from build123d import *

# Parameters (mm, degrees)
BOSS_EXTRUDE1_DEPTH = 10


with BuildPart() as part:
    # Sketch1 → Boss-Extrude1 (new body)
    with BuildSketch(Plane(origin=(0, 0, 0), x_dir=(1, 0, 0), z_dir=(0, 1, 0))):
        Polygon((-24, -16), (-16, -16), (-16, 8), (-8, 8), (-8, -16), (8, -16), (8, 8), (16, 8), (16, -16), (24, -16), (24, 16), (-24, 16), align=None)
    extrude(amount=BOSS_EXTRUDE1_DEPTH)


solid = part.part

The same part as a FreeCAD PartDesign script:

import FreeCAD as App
import Part
import Sketcher
from FreeCAD import Vector
Q = App.Units.Quantity

doc = App.newDocument("Part")
body = doc.addObject("PartDesign::Body", "Body")

sketch1 = doc.addObject("Sketcher::SketchObject", "Sketch")
body.addObject(sketch1)
sketch1.AttachmentSupport = (doc.XZ_Plane, [""])
sketch1.MapMode = "FlatFace"
sketch1.addGeometry([
    Part.LineSegment(Vector(-24, 16, 0), Vector(-16, 16, 0)),
    Part.LineSegment(Vector(-16, 16, 0), Vector(-16, -8, 0)),
    Part.LineSegment(Vector(-16, -8, 0), Vector(-8, -8, 0)),
    Part.LineSegment(Vector(-8, -8, 0), Vector(-8, 16, 0)),
    Part.LineSegment(Vector(-8, 16, 0), Vector(8, 16, 0)),
    Part.LineSegment(Vector(8, 16, 0), Vector(8, -8, 0)),
    Part.LineSegment(Vector(8, -8, 0), Vector(16, -8, 0)),
    Part.LineSegment(Vector(16, -8, 0), Vector(16, 16, 0)),
    Part.LineSegment(Vector(16, 16, 0), Vector(24, 16, 0)),
    Part.LineSegment(Vector(24, 16, 0), Vector(24, -16, 0)),
    Part.LineSegment(Vector(24, -16, 0), Vector(-24, -16, 0)),
    Part.LineSegment(Vector(-24, -16, 0), Vector(-24, 16, 0)),
], False)
sketch1.addConstraint([
    Sketcher.Constraint("Coincident", 0, 2, 1, 1),
    Sketcher.Constraint("Coincident", 1, 2, 2, 1),
    Sketcher.Constraint("Coincident", 2, 2, 3, 1),
    Sketcher.Constraint("Coincident", 3, 2, 4, 1),
    Sketcher.Constraint("Coincident", 4, 2, 5, 1),
    Sketcher.Constraint("Coincident", 5, 2, 6, 1),
    Sketcher.Constraint("Coincident", 6, 2, 7, 1),
    Sketcher.Constraint("Coincident", 7, 2, 8, 1),
    Sketcher.Constraint("Coincident", 8, 2, 9, 1),
    Sketcher.Constraint("Coincident", 9, 2, 10, 1),
    Sketcher.Constraint("Coincident", 10, 2, 11, 1),
    Sketcher.Constraint("Coincident", 11, 2, 0, 1),
    Sketcher.Constraint("Horizontal", 0),
    Sketcher.Constraint("Vertical", 1),
    Sketcher.Constraint("Horizontal", 2),
    Sketcher.Constraint("Vertical", 3),
    Sketcher.Constraint("Horizontal", 4),
    Sketcher.Constraint("Vertical", 5),
    Sketcher.Constraint("Horizontal", 6),
    Sketcher.Constraint("Vertical", 7),
    Sketcher.Constraint("Horizontal", 8),
    Sketcher.Constraint("Vertical", 9),
    Sketcher.Constraint("Horizontal", 10),
    Sketcher.Constraint("Vertical", 11),
    Sketcher.Constraint("Symmetric", 8, 2, 10, 2, -1, 1),
    Sketcher.Constraint("Symmetric", 2, 2, 5, 2, -2),
    Sketcher.Constraint("Symmetric", 0, 2, 7, 2, -2),
    Sketcher.Constraint("Horizontal", 0, 2, 3, 2),
    Sketcher.Constraint("Equal", 0, 2),
    Sketcher.Constraint("DistanceX", 0, 1, 0, 2, Q("8 mm")),
    Sketcher.Constraint("DistanceX", 4, 1, 4, 2, Q("16 mm")),
    Sketcher.Constraint("DistanceY", 1, 2, 1, 1, Q("24 mm")),
    Sketcher.Constraint("DistanceY", 9, 2, 9, 1, Q("32 mm")),
])
pad1 = doc.addObject("PartDesign::Pad", "Pad")
body.addObject(pad1)
pad1.Profile = sketch1
pad1.Length = 10
pad1.Reversed = True

doc.recompute()
